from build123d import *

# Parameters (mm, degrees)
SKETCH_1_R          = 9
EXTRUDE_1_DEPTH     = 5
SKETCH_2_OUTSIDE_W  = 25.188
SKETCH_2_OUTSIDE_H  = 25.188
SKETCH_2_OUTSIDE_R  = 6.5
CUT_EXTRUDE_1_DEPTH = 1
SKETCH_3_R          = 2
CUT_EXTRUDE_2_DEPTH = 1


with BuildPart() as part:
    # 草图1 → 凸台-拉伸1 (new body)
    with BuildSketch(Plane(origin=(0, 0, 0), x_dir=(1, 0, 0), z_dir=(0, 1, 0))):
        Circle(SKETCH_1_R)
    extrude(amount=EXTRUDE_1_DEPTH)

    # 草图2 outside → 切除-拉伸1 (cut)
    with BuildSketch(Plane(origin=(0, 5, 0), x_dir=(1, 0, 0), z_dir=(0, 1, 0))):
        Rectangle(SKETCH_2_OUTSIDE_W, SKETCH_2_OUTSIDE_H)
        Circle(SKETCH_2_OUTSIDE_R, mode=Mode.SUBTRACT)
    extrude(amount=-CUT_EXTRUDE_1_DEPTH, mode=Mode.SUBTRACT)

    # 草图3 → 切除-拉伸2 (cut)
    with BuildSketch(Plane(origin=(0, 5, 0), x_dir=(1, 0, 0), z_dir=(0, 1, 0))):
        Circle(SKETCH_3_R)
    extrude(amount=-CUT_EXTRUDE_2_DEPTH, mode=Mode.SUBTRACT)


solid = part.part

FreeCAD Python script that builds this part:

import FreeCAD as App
import Part
import Sketcher
Q = App.Units.Quantity

doc = App.newDocument("Part")
body = doc.addObject("PartDesign::Body", "Body")

# Sketch on XZ plane
sketch1 = doc.addObject("Sketcher::SketchObject", "Sketch")
body.addObject(sketch1)
sketch1.AttachmentSupport = (doc.XZ_Plane, [""])
sketch1.MapMode = "FlatFace"
sketch1.addGeometry(Part.Circle(App.Vector(0, 0, 0), App.Vector(0, 0, 1), 9), False)
sketch1.addConstraint(Sketcher.Constraint("Coincident", 0, 3, -1, 1))
sketch1.addConstraint(Sketcher.Constraint("Diameter", 0, Q("18 mm")))
pad1 = doc.addObject("PartDesign::Pad", "Pad")
body.addObject(pad1)
pad1.Profile = sketch1
pad1.Length = 5
pad1.Reversed = True

# Sketch on XZ plane
sketch2 = doc.addObject("Sketcher::SketchObject", "Sketch001")
body.addObject(sketch2)
sketch2.AttachmentSupport = (doc.XZ_Plane, [""])
sketch2.MapMode = "FlatFace"
sketch2.AttachmentOffset = App.Placement(App.Vector(0, 0, -5), App.Rotation())
sketch2.addGeometry(Part.LineSegment(App.Vector(-12.594, -12.594, 0), App.Vector(-12.594, 12.594, 0)), False)
sketch2.addGeometry(Part.LineSegment(App.Vector(-12.594, 12.594, 0), App.Vector(12.594, 12.594, 0)), False)
sketch2.addGeometry(Part.LineSegment(App.Vector(12.594, 12.594, 0), App.Vector(12.594, -12.594, 0)), False)
sketch2.addGeometry(Part.LineSegment(App.Vector(12.594, -12.594, 0), App.Vector(-12.594, -12.594, 0)), False)
sketch2.addGeometry(Part.Circle(App.Vector(0, 0, 0), App.Vector(0, 0, 1), 6.5), False)
sketch2.addConstraint(Sketcher.Constraint("Coincident", 0, 2, 1, 1))
sketch2.addConstraint(Sketcher.Constraint("Coincident", 1, 2, 2, 1))
sketch2.addConstraint(Sketcher.Constraint("Coincident", 2, 2, 3, 1))
sketch2.addConstraint(Sketcher.Constraint("Coincident", 3, 2, 0, 1))
sketch2.addConstraint(Sketcher.Constraint("Vertical", 0))
sketch2.addConstraint(Sketcher.Constraint("Horizontal", 1))
sketch2.addConstraint(Sketcher.Constraint("Vertical", 2))
sketch2.addConstraint(Sketcher.Constraint("Horizontal", 3))
sketch2.addConstraint(Sketcher.Constraint("Coincident", 4, 3, -1, 1))
sketch2.addConstraint(Sketcher.Constraint("Symmetric", 0, 2, 2, 2, -1, 1))
sketch2.addConstraint(Sketcher.Constraint("Equal", 3, 0))
sketch2.addConstraint(Sketcher.Constraint("Diameter", 4, Q("13 mm")))
sketch2.addConstraint(Sketcher.Constraint("DistanceX", 1, 1, 1, 2, Q("25.188 mm")))
pocket1 = doc.addObject("PartDesign::Pocket", "Pocket")
body.addObject(pocket1)
pocket1.Profile = sketch2
pocket1.Length = 1
pocket1.Reversed = True

# Sketch on XZ plane
sketch3 = doc.addObject("Sketcher::SketchObject", "Sketch002")
body.addObject(sketch3)
sketch3.AttachmentSupport = (doc.XZ_Plane, [""])
sketch3.MapMode = "FlatFace"
sketch3.AttachmentOffset = App.Placement(App.Vector(0, 0, -5), App.Rotation())
sketch3.addGeometry(Part.Circle(App.Vector(0, 0, 0), App.Vector(0, 0, 1), 2), False)
sketch3.addConstraint(Sketcher.Constraint("Coincident", 0, 3, -1, 1))
sketch3.addConstraint(Sketcher.Constraint("Diameter", 0, Q("4 mm")))
pocket2 = doc.addObject("PartDesign::Pocket", "Pocket001")
body.addObject(pocket2)
pocket2.Profile = sketch3
pocket2.Length = 1
pocket2.Reversed = True

doc.recompute()
